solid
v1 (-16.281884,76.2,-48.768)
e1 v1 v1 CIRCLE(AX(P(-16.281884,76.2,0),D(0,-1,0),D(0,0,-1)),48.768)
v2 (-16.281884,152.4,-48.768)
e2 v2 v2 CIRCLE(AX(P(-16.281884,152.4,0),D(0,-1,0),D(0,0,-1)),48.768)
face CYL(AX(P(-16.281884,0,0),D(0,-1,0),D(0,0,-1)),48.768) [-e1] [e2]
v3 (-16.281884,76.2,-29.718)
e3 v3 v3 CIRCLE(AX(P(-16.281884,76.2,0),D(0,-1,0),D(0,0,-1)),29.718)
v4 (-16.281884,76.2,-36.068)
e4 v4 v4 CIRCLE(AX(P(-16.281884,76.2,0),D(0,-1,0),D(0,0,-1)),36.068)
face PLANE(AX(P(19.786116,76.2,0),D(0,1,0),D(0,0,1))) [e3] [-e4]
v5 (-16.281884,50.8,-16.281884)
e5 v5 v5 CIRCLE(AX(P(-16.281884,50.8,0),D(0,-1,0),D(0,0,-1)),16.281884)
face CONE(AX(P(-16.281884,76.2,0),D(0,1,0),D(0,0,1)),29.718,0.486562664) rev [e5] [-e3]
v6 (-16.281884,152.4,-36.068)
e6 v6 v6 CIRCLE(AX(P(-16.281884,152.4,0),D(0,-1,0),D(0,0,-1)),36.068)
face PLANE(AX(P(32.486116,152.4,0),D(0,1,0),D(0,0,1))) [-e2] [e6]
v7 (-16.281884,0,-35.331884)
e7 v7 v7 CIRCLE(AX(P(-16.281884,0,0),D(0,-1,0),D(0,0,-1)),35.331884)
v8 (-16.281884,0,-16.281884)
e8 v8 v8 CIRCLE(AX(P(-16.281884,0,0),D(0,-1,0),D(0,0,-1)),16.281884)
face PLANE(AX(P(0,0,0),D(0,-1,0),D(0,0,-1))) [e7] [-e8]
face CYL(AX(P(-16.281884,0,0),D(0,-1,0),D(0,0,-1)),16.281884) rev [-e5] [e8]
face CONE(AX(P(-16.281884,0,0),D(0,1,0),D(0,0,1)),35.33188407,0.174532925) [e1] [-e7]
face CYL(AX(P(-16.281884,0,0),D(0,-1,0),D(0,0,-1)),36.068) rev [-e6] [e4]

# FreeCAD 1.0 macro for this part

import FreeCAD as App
import Part
import Sketcher
from FreeCAD import Vector
Q = App.Units.Quantity


def add_polygon(sketch, points):
    """Adds a closed chain of lines whose ends are joined by coincident constraints."""
    first, n = sketch.GeometryCount, len(points)
    for a, b in zip(points, points[1:] + points[:1]):
        sketch.addGeometry(Part.LineSegment(App.Vector(*a, 0), App.Vector(*b, 0)), False)
    for i in range(n):
        sketch.addConstraint(Sketcher.Constraint("Coincident", first + i, 2, first + (i + 1) % n, 1))

doc = App.newDocument("Part")
body = doc.addObject("PartDesign::Body", "Body")

# Sketch on XY plane
sketch1 = body.newObject("Sketcher::SketchObject", "Sketch")
sketch1.AttachmentSupport = (doc.getObject("XY_Plane"), [""])
sketch1.MapMode = "FlatFace"
add_polygon(sketch1, [(0, 0), (19.05, 0), (32.486116, 76.2), (32.486116, 152.4), (19.786116, 152.4), (19.786116, 76.2), (13.436116, 76.2), (0, 50.8)])  # lines 0-7
sketch1.addGeometry(Part.LineSegment(Vector(-16.281884, 0, 0), Vector(-16.281884, 152.4, 0)), True)  # axis
sketch1.addConstraint([
    Sketcher.Constraint("Horizontal", 0),
    Sketcher.Constraint("Vertical", 2),
    Sketcher.Constraint("Horizontal", 3),
    Sketcher.Constraint("Vertical", 4),
    Sketcher.Constraint("Horizontal", 5),
    Sketcher.Constraint("Vertical", 7),
    Sketcher.Constraint("Vertical", 8),
    Sketcher.Constraint("Coincident", 7, 2, -1, 1),
    Sketcher.Constraint("PointOnObject", 8, 1, -1),
    Sketcher.Constraint("Horizontal", 1, 2, 4, 2),
    Sketcher.Constraint("Horizontal", 3, 2, 8, 2),
    Sketcher.Constraint("DistanceY", 2, 1, 2, 2, Q("3 in")),
    Sketcher.Constraint("DistanceY", 7, 2, 7, 1, Q("2 in")),
    Sketcher.Constraint("DistanceY", 8, 1, 8, 2, Q("6 in")),
    Sketcher.Constraint("DistanceX", 3, 2, 3, 1, Q("0.5 in")),
    Sketcher.Constraint("Angle", 1, Q("80 deg")),
    Sketcher.Constraint("DistanceX", 0, 1, 0, 2, Q("0.75 in")),
    Sketcher.Constraint("DistanceX", 5, 2, 5, 1, Q("0.25 in")),
    Sketcher.Constraint("DistanceX", 8, 1, 5, 2, Q("1.17 in")),
])
revolution = body.newObject("PartDesign::Revolution", "Revolution")
revolution.Profile = sketch1
revolution.ReferenceAxis = (sketch1, ["Axis0"])
revolution.Angle = 360

doc.recompute()
